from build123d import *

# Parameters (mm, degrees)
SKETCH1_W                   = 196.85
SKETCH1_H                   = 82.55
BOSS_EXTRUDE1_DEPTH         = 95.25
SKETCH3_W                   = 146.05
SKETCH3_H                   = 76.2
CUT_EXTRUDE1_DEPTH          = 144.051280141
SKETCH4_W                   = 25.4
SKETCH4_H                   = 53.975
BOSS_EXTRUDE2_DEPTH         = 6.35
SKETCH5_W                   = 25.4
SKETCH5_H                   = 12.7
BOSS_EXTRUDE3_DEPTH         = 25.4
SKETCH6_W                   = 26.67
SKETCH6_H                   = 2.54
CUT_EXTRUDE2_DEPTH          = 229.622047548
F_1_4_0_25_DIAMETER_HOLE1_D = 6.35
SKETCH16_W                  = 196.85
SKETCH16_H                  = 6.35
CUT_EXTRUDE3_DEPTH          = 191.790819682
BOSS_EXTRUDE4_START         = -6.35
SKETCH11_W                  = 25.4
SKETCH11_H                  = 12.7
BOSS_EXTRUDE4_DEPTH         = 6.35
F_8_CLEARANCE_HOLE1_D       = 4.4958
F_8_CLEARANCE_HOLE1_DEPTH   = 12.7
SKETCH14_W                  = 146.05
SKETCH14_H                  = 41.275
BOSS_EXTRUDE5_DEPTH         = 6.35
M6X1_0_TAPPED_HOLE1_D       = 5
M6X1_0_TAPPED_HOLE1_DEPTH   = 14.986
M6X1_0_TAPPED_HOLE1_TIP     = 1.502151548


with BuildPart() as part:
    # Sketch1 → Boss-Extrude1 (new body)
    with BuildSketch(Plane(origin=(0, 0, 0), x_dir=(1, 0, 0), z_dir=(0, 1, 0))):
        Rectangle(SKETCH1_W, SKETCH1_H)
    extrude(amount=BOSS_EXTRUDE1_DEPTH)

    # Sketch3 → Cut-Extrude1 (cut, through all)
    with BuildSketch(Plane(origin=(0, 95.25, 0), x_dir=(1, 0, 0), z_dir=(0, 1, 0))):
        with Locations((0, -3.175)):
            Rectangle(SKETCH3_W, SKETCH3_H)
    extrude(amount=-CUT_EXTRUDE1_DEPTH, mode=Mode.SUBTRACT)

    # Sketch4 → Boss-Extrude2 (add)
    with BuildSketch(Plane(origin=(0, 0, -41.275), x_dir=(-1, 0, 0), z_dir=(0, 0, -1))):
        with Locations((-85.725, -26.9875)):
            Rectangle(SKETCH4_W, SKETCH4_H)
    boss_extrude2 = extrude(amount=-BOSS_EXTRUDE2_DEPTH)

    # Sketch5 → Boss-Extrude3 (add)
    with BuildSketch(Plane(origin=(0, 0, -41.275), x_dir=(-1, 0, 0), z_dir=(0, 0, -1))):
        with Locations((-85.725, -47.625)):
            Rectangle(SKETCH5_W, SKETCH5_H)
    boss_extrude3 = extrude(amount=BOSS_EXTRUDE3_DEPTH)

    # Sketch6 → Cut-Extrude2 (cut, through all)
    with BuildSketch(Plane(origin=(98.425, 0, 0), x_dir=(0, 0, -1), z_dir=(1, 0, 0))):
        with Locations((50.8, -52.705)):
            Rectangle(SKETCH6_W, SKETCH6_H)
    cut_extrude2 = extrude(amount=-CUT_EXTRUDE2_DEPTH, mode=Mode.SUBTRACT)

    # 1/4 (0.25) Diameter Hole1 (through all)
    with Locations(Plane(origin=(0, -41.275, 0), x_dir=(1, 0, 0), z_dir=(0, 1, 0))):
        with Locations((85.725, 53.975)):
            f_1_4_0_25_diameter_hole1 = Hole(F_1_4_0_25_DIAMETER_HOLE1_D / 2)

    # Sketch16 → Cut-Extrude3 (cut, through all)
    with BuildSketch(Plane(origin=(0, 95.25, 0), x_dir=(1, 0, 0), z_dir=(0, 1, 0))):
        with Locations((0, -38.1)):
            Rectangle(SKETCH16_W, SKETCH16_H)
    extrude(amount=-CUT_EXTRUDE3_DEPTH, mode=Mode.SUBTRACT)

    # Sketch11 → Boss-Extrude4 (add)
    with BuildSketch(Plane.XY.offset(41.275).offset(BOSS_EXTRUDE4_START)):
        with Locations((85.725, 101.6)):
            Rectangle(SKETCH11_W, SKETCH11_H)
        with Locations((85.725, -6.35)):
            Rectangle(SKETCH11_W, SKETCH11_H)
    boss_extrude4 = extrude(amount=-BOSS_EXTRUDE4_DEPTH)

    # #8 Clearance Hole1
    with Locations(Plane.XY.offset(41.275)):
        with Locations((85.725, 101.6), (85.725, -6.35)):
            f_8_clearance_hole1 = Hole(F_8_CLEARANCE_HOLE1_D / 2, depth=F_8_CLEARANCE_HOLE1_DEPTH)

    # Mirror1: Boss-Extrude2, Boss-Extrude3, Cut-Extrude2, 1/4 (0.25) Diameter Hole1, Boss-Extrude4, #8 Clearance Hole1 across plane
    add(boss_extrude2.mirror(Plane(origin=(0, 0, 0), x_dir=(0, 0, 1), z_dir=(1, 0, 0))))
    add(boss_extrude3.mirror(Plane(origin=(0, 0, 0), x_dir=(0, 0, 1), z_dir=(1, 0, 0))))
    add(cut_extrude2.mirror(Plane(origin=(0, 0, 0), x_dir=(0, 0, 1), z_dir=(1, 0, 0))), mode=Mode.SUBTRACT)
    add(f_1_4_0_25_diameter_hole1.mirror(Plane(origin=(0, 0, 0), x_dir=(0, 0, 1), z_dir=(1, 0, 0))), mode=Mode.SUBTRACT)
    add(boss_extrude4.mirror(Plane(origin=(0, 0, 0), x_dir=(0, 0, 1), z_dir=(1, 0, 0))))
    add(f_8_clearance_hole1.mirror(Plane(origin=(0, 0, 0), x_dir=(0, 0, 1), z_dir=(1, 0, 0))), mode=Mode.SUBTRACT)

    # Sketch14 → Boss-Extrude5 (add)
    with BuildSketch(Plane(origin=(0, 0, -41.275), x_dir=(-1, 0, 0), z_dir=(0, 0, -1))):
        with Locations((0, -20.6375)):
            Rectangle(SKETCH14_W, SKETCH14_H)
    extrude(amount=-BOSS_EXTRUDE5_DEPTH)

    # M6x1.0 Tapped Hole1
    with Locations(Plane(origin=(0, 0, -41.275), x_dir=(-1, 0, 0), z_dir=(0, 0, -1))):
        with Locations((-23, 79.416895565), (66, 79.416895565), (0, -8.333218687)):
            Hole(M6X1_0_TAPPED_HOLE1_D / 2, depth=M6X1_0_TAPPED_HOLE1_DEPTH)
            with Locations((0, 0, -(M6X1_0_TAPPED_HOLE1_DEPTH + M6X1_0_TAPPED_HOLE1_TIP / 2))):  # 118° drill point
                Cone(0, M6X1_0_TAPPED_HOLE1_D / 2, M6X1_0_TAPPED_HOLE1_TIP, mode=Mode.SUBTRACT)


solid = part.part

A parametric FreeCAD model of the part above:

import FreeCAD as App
import Part
import Sketcher
from FreeCAD import Vector
Q = App.Units.Quantity

doc = App.newDocument("Part")
body = doc.addObject("PartDesign::Body", "Body")

# Sketch on XZ plane
sketch1 = body.newObject("Sketcher::SketchObject", "Sketch")
sketch1.AttachmentSupport = (doc.getObject("XZ_Plane"), [""])
sketch1.MapMode = "FlatFace"
sketch1.addGeometry(Part.LineSegment(Vector(-98, -41, 0), Vector(-98, 41, 0)), False)
sketch1.addGeometry(Part.LineSegment(Vector(-98, 41, 0), Vector(98, 41, 0)), False)
sketch1.addGeometry(Part.LineSegment(Vector(98, 41, 0), Vector(98, -41, 0)), False)
sketch1.addGeometry(Part.LineSegment(Vector(98, -41, 0), Vector(-98, -41, 0)), False)
sketch1.addConstraint(Sketcher.Constraint("Coincident", 0, 2, 1, 1))
sketch1.addConstraint(Sketcher.Constraint("Coincident", 1, 2, 2, 1))
sketch1.addConstraint(Sketcher.Constraint("Coincident", 2, 2, 3, 1))
sketch1.addConstraint(Sketcher.Constraint("Coincident", 3, 2, 0, 1))
sketch1.addConstraint(Sketcher.Constraint("Vertical", 0))
sketch1.addConstraint(Sketcher.Constraint("Horizontal", 1))
sketch1.addConstraint(Sketcher.Constraint("Vertical", 2))
sketch1.addConstraint(Sketcher.Constraint("Horizontal", 3))
sketch1.addConstraint(Sketcher.Constraint("Symmetric", 0, 2, 2, 2, -1, 1))
sketch1.addConstraint(Sketcher.Constraint("DistanceX", 1, 1, 1, 2, Q("7.75 in")))
sketch1.addConstraint(Sketcher.Constraint("DistanceY", 0, 1, 0, 2, Q("3.25 in")))
pad1 = body.newObject("PartDesign::Pad", "Pad")
pad1.Profile = sketch1
pad1.Length = Q("3.75 in")
pad1.Reversed = True

# Sketch on XZ plane
sketch2 = body.newObject("Sketcher::SketchObject", "Sketch001")
sketch2.AttachmentSupport = (doc.getObject("XZ_Plane"), [""])
sketch2.MapMode = "FlatFace"
sketch2.AttachmentOffset = App.Placement(Vector(0, 0, -3.75 * 25.4), App.Rotation())
sketch2.addGeometry(Part.LineSegment(Vector(-73, -35, 0), Vector(-73, 41, 0)), False)
sketch2.addGeometry(Part.LineSegment(Vector(-73, 41, 0), Vector(73, 41, 0)), False)
sketch2.addGeometry(Part.LineSegment(Vector(73, 41, 0), Vector(73, -35, 0)), False)
sketch2.addGeometry(Part.LineSegment(Vector(73, -35, 0), Vector(-73, -35, 0)), False)
sketch2.addConstraint(Sketcher.Constraint("Coincident", 0, 2, 1, 1))
sketch2.addConstraint(Sketcher.Constraint("Coincident", 1, 2, 2, 1))
sketch2.addConstraint(Sketcher.Constraint("Coincident", 2, 2, 3, 1))
sketch2.addConstraint(Sketcher.Constraint("Coincident", 3, 2, 0, 1))
sketch2.addConstraint(Sketcher.Constraint("Vertical", 0))
sketch2.addConstraint(Sketcher.Constraint("Horizontal", 1))
sketch2.addConstraint(Sketcher.Constraint("Vertical", 2))
sketch2.addConstraint(Sketcher.Constraint("Horizontal", 3))
sketch2.addConstraint(Sketcher.Constraint("DistanceY", 0, 1, 0, 2, Q("3 in")))
sketch2.addConstraint(Sketcher.Constraint("DistanceX", 1, 1, 1, 2, Q("5.75 in")))
sketch2.addConstraint(Sketcher.Constraint("DistanceX", 0, 2, -1, 1, Q("2.875 in")))
sketch2.addConstraint(Sketcher.Constraint("DistanceY", -1, 1, 0, 2, Q("1.625 in")))
pocket1 = body.newObject("PartDesign::Pocket", "Pocket")
pocket1.Profile = sketch2
pocket1.Type = "ThroughAll"
pocket1.Reversed = True

# Sketch on XY plane
sketch3 = body.newObject("Sketcher::SketchObject", "Sketch002")
sketch3.AttachmentSupport = (doc.getObject("XY_Plane"), [""])
sketch3.MapMode = "FlatFace"
sketch3.AttachmentOffset = App.Placement(Vector(0, 0, -1.625 * 25.4), App.Rotation())
sketch3.addGeometry(Part.LineSegment(Vector(98, 0, 0), Vector(98, -54, 0)), False)
sketch3.addGeometry(Part.LineSegment(Vector(98, -54, 0), Vector(73, -54, 0)), False)
sketch3.addGeometry(Part.LineSegment(Vector(73, -54, 0), Vector(73, 0, 0)), False)
sketch3.addGeometry(Part.LineSegment(Vector(73, 0, 0), Vector(98, 0, 0)), False)
sketch3.addConstraint(Sketcher.Constraint("Coincident", 0, 2, 1, 1))
sketch3.addConstraint(Sketcher.Constraint("Coincident", 1, 2, 2, 1))
sketch3.addConstraint(Sketcher.Constraint("Coincident", 2, 2, 3, 1))
sketch3.addConstraint(Sketcher.Constraint("Coincident", 3, 2, 0, 1))
sketch3.addConstraint(Sketcher.Constraint("Vertical", 0))
sketch3.addConstraint(Sketcher.Constraint("Horizontal", 1))
sketch3.addConstraint(Sketcher.Constraint("Vertical", 2))
sketch3.addConstraint(Sketcher.Constraint("Horizontal", 3))
sketch3.addConstraint(Sketcher.Constraint("PointOnObject", 2, 2, -1))
sketch3.addConstraint(Sketcher.Constraint("DistanceX", 1, 2, 1, 1, Q("1 in")))
sketch3.addConstraint(Sketcher.Constraint("DistanceY", 0, 2, 0, 1, Q("2.125 in")))
sketch3.addConstraint(Sketcher.Constraint("DistanceX", -1, 1, 0, 2, Q("3.875 in")))
pad2 = body.newObject("PartDesign::Pad", "Pad001")
pad2.Profile = sketch3
pad2.Length = Q("0.25 in")

# Sketch on XY plane
sketch4 = body.newObject("Sketcher::SketchObject", "Sketch003")
sketch4.AttachmentSupport = (doc.getObject("XY_Plane"), [""])
sketch4.MapMode = "FlatFace"
sketch4.AttachmentOffset = App.Placement(Vector(0, 0, -1.625 * 25.4), App.Rotation())
sketch4.addGeometry(Part.LineSegment(Vector(98, -41, 0), Vector(98, -54, 0)), False)
sketch4.addGeometry(Part.LineSegment(Vector(98, -54, 0), Vector(73, -54, 0)), False)
sketch4.addGeometry(Part.LineSegment(Vector(73, -54, 0), Vector(73, -41, 0)), False)
sketch4.addGeometry(Part.LineSegment(Vector(73, -41, 0), Vector(98, -41, 0)), False)
sketch4.addConstraint(Sketcher.Constraint("Coincident", 0, 2, 1, 1))
sketch4.addConstraint(Sketcher.Constraint("Coincident", 1, 2, 2, 1))
sketch4.addConstraint(Sketcher.Constraint("Coincident", 2, 2, 3, 1))
sketch4.addConstraint(Sketcher.Constraint("Coincident", 3, 2, 0, 1))
sketch4.addConstraint(Sketcher.Constraint("Vertical", 0))
sketch4.addConstraint(Sketcher.Constraint("Horizontal", 1))
sketch4.addConstraint(Sketcher.Constraint("Vertical", 2))
sketch4.addConstraint(Sketcher.Constraint("Horizontal", 3))
sketch4.addConstraint(Sketcher.Constraint("DistanceX", 1, 2, 1, 1, Q("1 in")))
sketch4.addConstraint(Sketcher.Constraint("DistanceY", 0, 2, 0, 1, Q("0.5 in")))
sketch4.addConstraint(Sketcher.Constraint("DistanceX", -1, 1, 0, 2, Q("3.875 in")))
sketch4.addConstraint(Sketcher.Constraint("DistanceY", 0, 2, -1, 1, Q("2.125 in")))
pad3 = body.newObject("PartDesign::Pad", "Pad002")
pad3.Profile = sketch4
pad3.Length = Q("1 in")
pad3.Reversed = True

# Sketch on YZ plane
sketch5 = body.newObject("Sketcher::SketchObject", "Sketch004")
sketch5.AttachmentSupport = (doc.getObject("YZ_Plane"), [""])
sketch5.MapMode = "FlatFace"
sketch5.AttachmentOffset = App.Placement(Vector(0, 0, 3.875 * 25.4), App.Rotation())
sketch5.addGeometry(Part.LineSegment(Vector(-51.4, -37.5, 0), Vector(-54, -37.5, 0)), False)
sketch5.addGeometry(Part.LineSegment(Vector(-54, -37.5, 0), Vector(-54, -64.1, 0)), False)
sketch5.addGeometry(Part.LineSegment(Vector(-54, -64.1, 0), Vector(-51.4, -64.1, 0)), False)
sketch5.addGeometry(Part.LineSegment(Vector(-51.4, -64.1, 0), Vector(-51.4, -37.5, 0)), False)
sketch5.addConstraint(Sketcher.Constraint("Coincident", 0, 2, 1, 1))
sketch5.addConstraint(Sketcher.Constraint("Coincident", 1, 2, 2, 1))
sketch5.addConstraint(Sketcher.Constraint("Coincident", 2, 2, 3, 1))
sketch5.addConstraint(Sketcher.Constraint("Coincident", 3, 2, 0, 1))
sketch5.addConstraint(Sketcher.Constraint("Horizontal", 0))
sketch5.addConstraint(Sketcher.Constraint("Vertical", 1))
sketch5.addConstraint(Sketcher.Constraint("Horizontal", 2))
sketch5.addConstraint(Sketcher.Constraint("Vertical", 3))
sketch5.addConstraint(Sketcher.Constraint("DistanceX", 0, 2, 0, 1, Q("0.1 in")))
sketch5.addConstraint(Sketcher.Constraint("DistanceY", 1, 2, 1, 1, Q("1.05 in")))
sketch5.addConstraint(Sketcher.Constraint("DistanceX", 0, 2, -1, 1, Q("2.125 in")))
sketch5.addConstraint(Sketcher.Constraint("DistanceY", 0, 2, -1, 1, Q("1.475 in")))
pocket2 = body.newObject("PartDesign::Pocket", "Pocket001")
pocket2.Profile = sketch5
pocket2.Type = "ThroughAll"

# Sketch on XZ plane
sketch6 = body.newObject("Sketcher::SketchObject", "Sketch005")
sketch6.AttachmentSupport = (doc.getObject("XZ_Plane"), [""])
sketch6.MapMode = "FlatFace"
sketch6.AttachmentOffset = App.Placement(Vector(0, 0, 1.625 * 25.4), App.Rotation())
sketch6.addGeometry(Part.Circle(Vector(85.7, -54, 0), Vector(0, 0, 1), 3.2), False)
sketch6.addConstraint(Sketcher.Constraint("Diameter", 0, Q("0.25 in")))
sketch6.addConstraint(Sketcher.Constraint("DistanceX", -1, 1, 0, 3, Q("3.375 in")))
sketch6.addConstraint(Sketcher.Constraint("DistanceY", 0, 3, -1, 1, Q("2.125 in")))
doc.recompute()
hole = body.newObject("PartDesign::Hole", "Hole")
hole.Profile = sketch6
hole.ThreadType = "None"
hole.Diameter = Q("0.25 in")
hole.DepthType = "ThroughAll"
hole.Reversed = True

# Sketch on XZ plane
sketch7 = body.newObject("Sketcher::SketchObject", "Sketch006")
sketch7.AttachmentSupport = (doc.getObject("XZ_Plane"), [""])
sketch7.MapMode = "FlatFace"
sketch7.AttachmentOffset = App.Placement(Vector(0, 0, -3.75 * 25.4), App.Rotation())
sketch7.addGeometry(Part.LineSegment(Vector(-98, 35, 0), Vector(-98, 41, 0)), False)
sketch7.addGeometry(Part.LineSegment(Vector(-98, 41, 0), Vector(98, 41, 0)), False)
sketch7.addGeometry(Part.LineSegment(Vector(98, 41, 0), Vector(98, 35, 0)), False)
sketch7.addGeometry(Part.LineSegment(Vector(98, 35, 0), Vector(-98, 35, 0)), False)
sketch7.addConstraint(Sketcher.Constraint("Coincident", 0, 2, 1, 1))
sketch7.addConstraint(Sketcher.Constraint("Coincident", 1, 2, 2, 1))
sketch7.addConstraint(Sketcher.Constraint("Coincident", 2, 2, 3, 1))
sketch7.addConstraint(Sketcher.Constraint("Coincident", 3, 2, 0, 1))
sketch7.addConstraint(Sketcher.Constraint("Vertical", 0))
sketch7.addConstraint(Sketcher.Constraint("Horizontal", 1))
sketch7.addConstraint(Sketcher.Constraint("Vertical", 2))
sketch7.addConstraint(Sketcher.Constraint("Horizontal", 3))
sketch7.addConstraint(Sketcher.Constraint("DistanceX", 1, 1, 1, 2, Q("7.75 in")))
sketch7.addConstraint(Sketcher.Constraint("DistanceY", 0, 1, 0, 2, Q("0.25 in")))
sketch7.addConstraint(Sketcher.Constraint("DistanceX", 0, 2, -1, 1, Q("3.875 in")))
sketch7.addConstraint(Sketcher.Constraint("DistanceY", -1, 1, 0, 2, Q("1.625 in")))
pocket3 = body.newObject("PartDesign::Pocket", "Pocket002")
pocket3.Profile = sketch7
pocket3.Type = "ThroughAll"
pocket3.Reversed = True

# Sketch on XY plane
sketch8 = body.newObject("Sketcher::SketchObject", "Sketch007")
sketch8.AttachmentSupport = (doc.getObject("XY_Plane"), [""])
sketch8.MapMode = "FlatFace"
sketch8.AttachmentOffset = App.Placement(Vector(0, 0, 1.375 * 25.4), App.Rotation())
sketch8.addGeometry(Part.LineSegment(Vector(73, 108, 0), Vector(73, 95, 0)), False)
sketch8.addGeometry(Part.LineSegment(Vector(73, 95, 0), Vector(98, 95, 0)), False)
sketch8.addGeometry(Part.LineSegment(Vector(98, 95, 0), Vector(98, 108, 0)), False)
sketch8.addGeometry(Part.LineSegment(Vector(98, 108, 0), Vector(73, 108, 0)), False)
sketch8.addGeometry(Part.LineSegment(Vector(73, 0, 0), Vector(73, -13, 0)), False)
sketch8.addGeometry(Part.LineSegment(Vector(73, -13, 0), Vector(98, -13, 0)), False)
sketch8.addGeometry(Part.LineSegment(Vector(98, -13, 0), Vector(98, 0, 0)), False)
sketch8.addGeometry(Part.LineSegment(Vector(98, 0, 0), Vector(73, 0, 0)), False)
sketch8.addConstraint(Sketcher.Constraint("Coincident", 0, 2, 1, 1))
sketch8.addConstraint(Sketcher.Constraint("Coincident", 1, 2, 2, 1))
sketch8.addConstraint(Sketcher.Constraint("Coincident", 2, 2, 3, 1))
sketch8.addConstraint(Sketcher.Constraint("Coincident", 3, 2, 0, 1))
sketch8.addConstraint(Sketcher.Constraint("Coincident", 4, 2, 5, 1))
sketch8.addConstraint(Sketcher.Constraint("Coincident", 5, 2, 6, 1))
sketch8.addConstraint(Sketcher.Constraint("Coincident", 6, 2, 7, 1))
sketch8.addConstraint(Sketcher.Constraint("Coincident", 7, 2, 4, 1))
sketch8.addConstraint(Sketcher.Constraint("Vertical", 0))
sketch8.addConstraint(Sketcher.Constraint("Horizontal", 1))
sketch8.addConstraint(Sketcher.Constraint("Vertical", 2))
sketch8.addConstraint(Sketcher.Constraint("Horizontal", 3))
sketch8.addConstraint(Sketcher.Constraint("Vertical", 4))
sketch8.addConstraint(Sketcher.Constraint("Horizontal", 5))
sketch8.addConstraint(Sketcher.Constraint("Vertical", 6))
sketch8.addConstraint(Sketcher.Constraint("Horizontal", 7))
sketch8.addConstraint(Sketcher.Constraint("PointOnObject", 6, 2, -1))
sketch8.addConstraint(Sketcher.Constraint("Vertical", 3, 2, 4, 2))
sketch8.addConstraint(Sketcher.Constraint("Vertical", 2, 2, 5, 2))
sketch8.addConstraint(Sketcher.Constraint("Equal", 2, 4))
sketch8.addConstraint(Sketcher.Constraint("DistanceX", 1, 1, 1, 2, Q("1 in")))
sketch8.addConstraint(Sketcher.Constraint("DistanceY", 0, 2, 0, 1, Q("0.5 in")))
sketch8.addConstraint(Sketcher.Constraint("DistanceY", -1, 1, 0, 2, Q("3.75 in")))
sketch8.addConstraint(Sketcher.Constraint("DistanceX", -1, 1, 0, 2, Q("2.875 in")))
pad4 = body.newObject("PartDesign::Pad", "Pad003")
pad4.Profile = sketch8
pad4.Length = Q("0.25 in")
pad4.Reversed = True

# Sketch on XY plane
sketch9 = body.newObject("Sketcher::SketchObject", "Sketch008")
sketch9.AttachmentSupport = (doc.getObject("XY_Plane"), [""])
sketch9.MapMode = "FlatFace"
sketch9.AttachmentOffset = App.Placement(Vector(0, 0, 1.625 * 25.4), App.Rotation())
sketch9.addGeometry(Part.Circle(Vector(85.7, 101.6, 0), Vector(0, 0, 1), 2.2), False)
sketch9.addGeometry(Part.Circle(Vector(85.7, -6.3, 0), Vector(0, 0, 1), 2.2), False)
sketch9.addConstraint(Sketcher.Constraint("Equal", 0, 1))
sketch9.addConstraint(Sketcher.Constraint("Vertical", 0, 3, 1, 3))
sketch9.addConstraint(Sketcher.Constraint("Diameter", 0, Q("0.177 in")))
sketch9.addConstraint(Sketcher.Constraint("DistanceY", -1, 1, 0, 3, Q("4 in")))
sketch9.addConstraint(Sketcher.Constraint("DistanceY", 1, 3, -1, 1, Q("0.25 in")))
sketch9.addConstraint(Sketcher.Constraint("DistanceX", -1, 1, 0, 3, Q("3.375 in")))
doc.recompute()
hole2 = body.newObject("PartDesign::Hole", "Hole001")
hole2.Profile = sketch9
hole2.ThreadType = "None"
hole2.Diameter = Q("0.177 in")
hole2.DepthType = "Dimension"
hole2.Depth = Q("0.5 in")
hole2.DrillPoint = "Flat"
doc.recompute()

mirrored = body.newObject("PartDesign::Mirrored", "Mirrored")
mirrored.Originals = [pad2, pad3, pocket2, hole, pad4, hole2]
mirrored.MirrorPlane = (doc.getObject("YZ_Plane"), [""])
body.Tip = mirrored

# Sketch on XY plane
sketch10 = body.newObject("Sketcher::SketchObject", "Sketch009")
sketch10.AttachmentSupport = (doc.getObject("XY_Plane"), [""])
sketch10.MapMode = "FlatFace"
sketch10.AttachmentOffset = App.Placement(Vector(0, 0, -1.625 * 25.4), App.Rotation())
sketch10.addGeometry(Part.LineSegment(Vector(73, 0, 0), Vector(73, -41, 0)), False)
sketch10.addGeometry(Part.LineSegment(Vector(73, -41, 0), Vector(-73, -41, 0)), False)
sketch10.addGeometry(Part.LineSegment(Vector(-73, -41, 0), Vector(-73, 0, 0)), False)
sketch10.addGeometry(Part.LineSegment(Vector(-73, 0, 0), Vector(73, 0, 0)), False)
sketch10.addConstraint(Sketcher.Constraint("Coincident", 0, 2, 1, 1))
sketch10.addConstraint(Sketcher.Constraint("Coincident", 1, 2, 2, 1))
sketch10.addConstraint(Sketcher.Constraint("Coincident", 2, 2, 3, 1))
sketch10.addConstraint(Sketcher.Constraint("Coincident", 3, 2, 0, 1))
sketch10.addConstraint(Sketcher.Constraint("Vertical", 0))
sketch10.addConstraint(Sketcher.Constraint("Horizontal", 1))
sketch10.addConstraint(Sketcher.Constraint("Vertical", 2))
sketch10.addConstraint(Sketcher.Constraint("Horizontal", 3))
sketch10.addConstraint(Sketcher.Constraint("Symmetric", 2, 2, 3, 2, -1, 1))
sketch10.addConstraint(Sketcher.Constraint("DistanceX", 1, 2, 1, 1, Q("5.75 in")))
sketch10.addConstraint(Sketcher.Constraint("DistanceY", 0, 2, 0, 1, Q("1.625 in")))
pad5 = body.newObject("PartDesign::Pad", "Pad004")
pad5.Profile = sketch10
pad5.Length = Q("0.25 in")

# Sketch on XY plane
sketch11 = body.newObject("Sketcher::SketchObject", "Sketch010")
sketch11.AttachmentSupport = (doc.getObject("XY_Plane"), [""])
sketch11.MapMode = "FlatFace"
sketch11.AttachmentOffset = App.Placement(Vector(0, 0, -1.625 * 25.4), App.Rotation())
sketch11.addGeometry(Part.Circle(Vector(23, 79.4, 0), Vector(0, 0, 1), 2.5), False)
sketch11.addGeometry(Part.Circle(Vector(-66, 79.4, 0), Vector(0, 0, 1), 2.5), False)
sketch11.addGeometry(Part.Circle(Vector(0, -8.3, 0), Vector(0, 0, 1), 2.5), False)
sketch11.addConstraint(Sketcher.Constraint("Equal", 0, 1))
sketch11.addConstraint(Sketcher.Constraint("Equal", 1, 2))
sketch11.addConstraint(Sketcher.Constraint("PointOnObject", 2, 3, -2))
sketch11.addConstraint(Sketcher.Constraint("Horizontal", 0, 3, 1, 3))
sketch11.addConstraint(Sketcher.Constraint("Diameter", 0, Q("5 mm")))
sketch11.addConstraint(Sketcher.Constraint("DistanceX", -1, 1, 0, 3, Q("23 mm")))
sketch11.addConstraint(Sketcher.Constraint("DistanceX", 1, 3, -1, 1, Q("66 mm")))
sketch11.addConstraint(Sketcher.Constraint("DistanceY", 2, 3, -1, 1, Q("8.333219 mm")))
sketch11.addConstraint(Sketcher.Constraint("DistanceY", -1, 1, 0, 3, Q("79.416896 mm")))
doc.recompute()
hole3 = body.newObject("PartDesign::Hole", "Hole002")
hole3.Profile = sketch11
hole3.ThreadType = "None"
hole3.Diameter = 5
hole3.DepthType = "Dimension"
hole3.Depth = Q("0.59 in")
hole3.DrillPoint = "Angled"
hole3.DrillPointAngle = 118
hole3.Reversed = True

doc.recompute()
